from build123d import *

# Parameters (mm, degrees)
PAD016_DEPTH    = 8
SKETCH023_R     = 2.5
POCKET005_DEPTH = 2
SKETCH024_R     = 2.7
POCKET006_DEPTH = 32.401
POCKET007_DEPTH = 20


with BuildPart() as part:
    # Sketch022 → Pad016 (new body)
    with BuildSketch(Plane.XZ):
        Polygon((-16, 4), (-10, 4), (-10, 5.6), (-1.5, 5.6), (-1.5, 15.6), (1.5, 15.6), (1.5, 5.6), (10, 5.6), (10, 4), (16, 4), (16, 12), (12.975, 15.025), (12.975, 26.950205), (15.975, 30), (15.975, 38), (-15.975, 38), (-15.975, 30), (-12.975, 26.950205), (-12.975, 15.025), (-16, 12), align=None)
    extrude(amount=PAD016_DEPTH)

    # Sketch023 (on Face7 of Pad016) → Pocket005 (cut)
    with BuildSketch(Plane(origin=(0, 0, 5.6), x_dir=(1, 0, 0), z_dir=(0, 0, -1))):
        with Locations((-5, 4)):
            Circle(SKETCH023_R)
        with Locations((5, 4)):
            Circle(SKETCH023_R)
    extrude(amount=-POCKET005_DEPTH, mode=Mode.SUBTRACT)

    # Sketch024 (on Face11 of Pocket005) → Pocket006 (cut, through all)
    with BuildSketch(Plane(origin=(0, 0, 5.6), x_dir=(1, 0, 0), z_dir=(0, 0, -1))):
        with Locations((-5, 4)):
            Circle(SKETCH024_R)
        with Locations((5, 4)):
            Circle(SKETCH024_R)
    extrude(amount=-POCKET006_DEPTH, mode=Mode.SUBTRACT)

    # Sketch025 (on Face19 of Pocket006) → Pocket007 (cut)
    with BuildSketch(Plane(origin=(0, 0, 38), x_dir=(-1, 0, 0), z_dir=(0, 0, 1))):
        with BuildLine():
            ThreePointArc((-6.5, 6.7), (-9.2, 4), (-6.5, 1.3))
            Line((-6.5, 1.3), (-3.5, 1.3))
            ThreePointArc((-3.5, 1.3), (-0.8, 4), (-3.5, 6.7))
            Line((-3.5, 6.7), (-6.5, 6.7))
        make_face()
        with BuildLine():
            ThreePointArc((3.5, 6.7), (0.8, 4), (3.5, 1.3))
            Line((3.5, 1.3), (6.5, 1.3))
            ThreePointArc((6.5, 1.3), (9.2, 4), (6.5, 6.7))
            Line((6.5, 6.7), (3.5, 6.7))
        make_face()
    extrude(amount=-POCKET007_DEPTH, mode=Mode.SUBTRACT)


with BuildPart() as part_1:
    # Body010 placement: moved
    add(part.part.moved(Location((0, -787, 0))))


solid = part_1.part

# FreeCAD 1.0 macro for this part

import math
import FreeCAD as App
import Part
import Sketcher
from FreeCAD import Vector


def add_polygon(sketch, points):
    """Adds a closed chain of lines whose ends are joined by coincident constraints."""
    first, n = sketch.GeometryCount, len(points)
    for a, b in zip(points, points[1:] + points[:1]):
        sketch.addGeometry(Part.LineSegment(App.Vector(*a, 0), App.Vector(*b, 0)), False)
    for i in range(n):
        sketch.addConstraint(Sketcher.Constraint("Coincident", first + i, 2, first + (i + 1) % n, 1))

doc = App.newDocument("Part")
body = doc.addObject("PartDesign::Body", "Body")

# Sketch on XZ plane
sketch1 = body.newObject("Sketcher::SketchObject", "Sketch")
sketch1.AttachmentSupport = (doc.getObject("XZ_Plane"), [""])
sketch1.MapMode = "FlatFace"
add_polygon(sketch1, [(-16, 4), (-10, 4), (-10, 5.6), (-1.5, 5.6), (-1.5, 15.6), (1.5, 15.6), (1.5, 5.6), (10, 5.6), (10, 4), (16, 4), (16, 12), (13, 15), (13, 27), (16, 30), (16, 38), (-16, 38), (-16, 30), (-13, 27), (-13, 15), (-16, 12)])  # lines 0-19
sketch1.addConstraint([
    Sketcher.Constraint("Horizontal", 0),
    Sketcher.Constraint("Vertical", 1),
    Sketcher.Constraint("Horizontal", 2),
    Sketcher.Constraint("Vertical", 3),
    Sketcher.Constraint("Horizontal", 4),
    Sketcher.Constraint("Vertical", 5),
    Sketcher.Constraint("Horizontal", 6),
    Sketcher.Constraint("Vertical", 7),
    Sketcher.Constraint("Horizontal", 8),
    Sketcher.Constraint("Vertical", 9),
    Sketcher.Constraint("Vertical", 11),
    Sketcher.Constraint("Vertical", 13),
    Sketcher.Constraint("Horizontal", 14),
    Sketcher.Constraint("Vertical", 15),
    Sketcher.Constraint("Vertical", 17),
    Sketcher.Constraint("Vertical", 19),
    Sketcher.Constraint("Symmetric", 2, 2, 5, 2, -2),
    Sketcher.Constraint("Symmetric", 0, 2, 7, 2, -2),
    Sketcher.Constraint("Symmetric", 12, 2, 15, 2, -2),
    Sketcher.Constraint("Symmetric", 11, 2, 16, 2, -2),
    Sketcher.Constraint("Symmetric", 9, 2, 18, 2, -2),
    Sketcher.Constraint("Perpendicular", 10, 18),
    Sketcher.Constraint("Horizontal", 10, 2, 17, 2),
    Sketcher.Constraint("Equal", 9, 13),
    Sketcher.Constraint("Equal", 10, 12),
    Sketcher.Constraint("DistanceX", 0, 1, 0, 2, 6.0),
    Sketcher.Constraint("DistanceX", 4, 1, 4, 2, 3.0),
    Sketcher.Constraint("DistanceY", 3, 1, 3, 2, 10.0),
    Sketcher.Constraint("DistanceY", 9, 1, 9, 2, 8.0),
    Sketcher.Constraint("DistanceX", 2, 1, 2, 2, 8.5),
    Sketcher.Constraint("DistanceY", 1, 1, 1, 2, 1.6),
    Sketcher.Constraint("DistanceY", -1, 1, 0, 2, 4.0),
    Sketcher.Constraint("DistanceY", -1, 1, 12, 2, 30.0),
    Sketcher.Constraint("DistanceX", 11, 2, 12, 2, 3.0),
    Sketcher.Constraint("DistanceX", 14, 2, 14, 1, 31.95),
])
pad1 = body.newObject("PartDesign::Pad", "Pad")
pad1.Profile = sketch1
pad1.Length = 8

# Sketch on XY plane
sketch2 = body.newObject("Sketcher::SketchObject", "Sketch001")
sketch2.AttachmentSupport = (doc.getObject("XY_Plane"), [""])
sketch2.MapMode = "FlatFace"
sketch2.AttachmentOffset = App.Placement(Vector(0, 0, 5.6), App.Rotation())
sketch2.addGeometry([
    Part.Circle(Vector(-5, -4, 0), Vector(0, 0, 1), 2.5),
    Part.Circle(Vector(5, -4, 0), Vector(0, 0, 1), 2.5),
], False)
sketch2.addConstraint([
    Sketcher.Constraint("Equal", 0, 1),
    Sketcher.Constraint("Symmetric", 0, 3, 1, 3, -2),
    Sketcher.Constraint("Diameter", 0, 5.0),
    Sketcher.Constraint("DistanceX", 0, 3, -1, 1, 5.0),
    Sketcher.Constraint("DistanceY", 0, 3, -1, 1, 4.0),
])
pocket1 = body.newObject("PartDesign::Pocket", "Pocket")
pocket1.Profile = sketch2
pocket1.Length = 2
pocket1.Reversed = True

# Sketch on XY plane
sketch3 = body.newObject("Sketcher::SketchObject", "Sketch002")
sketch3.AttachmentSupport = (doc.getObject("XY_Plane"), [""])
sketch3.MapMode = "FlatFace"
sketch3.AttachmentOffset = App.Placement(Vector(0, 0, 5.6), App.Rotation())
sketch3.addGeometry([
    Part.Circle(Vector(-5, -4, 0), Vector(0, 0, 1), 2.7),
    Part.Circle(Vector(5, -4, 0), Vector(0, 0, 1), 2.7),
], False)
sketch3.addConstraint([
    Sketcher.Constraint("Equal", 0, 1),
    Sketcher.Constraint("Symmetric", 0, 3, 1, 3, -2),
    Sketcher.Constraint("Diameter", 0, 5.4),
    Sketcher.Constraint("DistanceX", 0, 3, -1, 1, 5.0),
    Sketcher.Constraint("DistanceY", 0, 3, -1, 1, 4.0),
])
pocket2 = body.newObject("PartDesign::Pocket", "Pocket001")
pocket2.Profile = sketch3
pocket2.Type = "ThroughAll"
pocket2.Reversed = True

# Sketch on XY plane
sketch4 = body.newObject("Sketcher::SketchObject", "Sketch003")
sketch4.AttachmentSupport = (doc.getObject("XY_Plane"), [""])
sketch4.MapMode = "FlatFace"
sketch4.AttachmentOffset = App.Placement(Vector(0, 0, 38), App.Rotation())
sketch4.addGeometry([
    Part.ArcOfCircle(Part.Circle(Vector(6.5, -4, 0), Vector(0, 0, 1), 2.7), math.radians(-90), math.radians(90)),  # 0
    Part.LineSegment(Vector(6.5, -1.3, 0), Vector(3.5, -1.3, 0)),  # 1
    Part.ArcOfCircle(Part.Circle(Vector(3.5, -4, 0), Vector(0, 0, 1), 2.7), math.radians(90), math.radians(270)),  # 2
    Part.LineSegment(Vector(3.5, -6.7, 0), Vector(6.5, -6.7, 0)),  # 3
    Part.ArcOfCircle(Part.Circle(Vector(-3.5, -4, 0), Vector(0, 0, 1), 2.7), math.radians(-90), math.radians(90)),  # 4
    Part.LineSegment(Vector(-3.5, -1.3, 0), Vector(-6.5, -1.3, 0)),  # 5
    Part.ArcOfCircle(Part.Circle(Vector(-6.5, -4, 0), Vector(0, 0, 1), 2.7), math.radians(90), math.radians(270)),  # 6
    Part.LineSegment(Vector(-6.5, -6.7, 0), Vector(-3.5, -6.7, 0)),  # 7
], False)
sketch4.addConstraint([
    Sketcher.Constraint("Tangent", 0, 2, 1, 1),
    Sketcher.Constraint("Tangent", 1, 2, 2, 1),
    Sketcher.Constraint("Tangent", 2, 2, 3, 1),
    Sketcher.Constraint("Tangent", 3, 2, 0, 1),
    Sketcher.Constraint("Tangent", 4, 2, 5, 1),
    Sketcher.Constraint("Tangent", 5, 2, 6, 1),
    Sketcher.Constraint("Tangent", 6, 2, 7, 1),
    Sketcher.Constraint("Tangent", 7, 2, 4, 1),
    Sketcher.Constraint("Horizontal", 1),
    Sketcher.Constraint("Horizontal", 3),
    Sketcher.Constraint("Horizontal", 5),
    Sketcher.Constraint("Horizontal", 7),
    Sketcher.Constraint("Equal", 2, 4),
    Sketcher.Constraint("Symmetric", 2, 3, 4, 3, -2),
    Sketcher.Constraint("Equal", 3, 5),
    Sketcher.Constraint("Radius", 0, 2.7),
    Sketcher.Constraint("DistanceX", 1, 2, 1, 1, 3.0),
    Sketcher.Constraint("DistanceY", 0, 3, -1, 1, 4.0),
    Sketcher.Constraint("DistanceX", 4, 3, 2, 3, 7.0),
])
pocket3 = body.newObject("PartDesign::Pocket", "Pocket002")
pocket3.Profile = sketch4
pocket3.Length = 20
body2 = doc.addObject("PartDesign::Body", "Body001")
doc.recompute()

body.Placement = App.Placement(Vector(0, -787, 0), App.Rotation(Vector(0, 0, 1), 0))
boolean = body2.newObject("PartDesign::Boolean", "Boolean")
boolean.Type = "Fuse"
boolean.addObjects([body])

doc.recompute()
